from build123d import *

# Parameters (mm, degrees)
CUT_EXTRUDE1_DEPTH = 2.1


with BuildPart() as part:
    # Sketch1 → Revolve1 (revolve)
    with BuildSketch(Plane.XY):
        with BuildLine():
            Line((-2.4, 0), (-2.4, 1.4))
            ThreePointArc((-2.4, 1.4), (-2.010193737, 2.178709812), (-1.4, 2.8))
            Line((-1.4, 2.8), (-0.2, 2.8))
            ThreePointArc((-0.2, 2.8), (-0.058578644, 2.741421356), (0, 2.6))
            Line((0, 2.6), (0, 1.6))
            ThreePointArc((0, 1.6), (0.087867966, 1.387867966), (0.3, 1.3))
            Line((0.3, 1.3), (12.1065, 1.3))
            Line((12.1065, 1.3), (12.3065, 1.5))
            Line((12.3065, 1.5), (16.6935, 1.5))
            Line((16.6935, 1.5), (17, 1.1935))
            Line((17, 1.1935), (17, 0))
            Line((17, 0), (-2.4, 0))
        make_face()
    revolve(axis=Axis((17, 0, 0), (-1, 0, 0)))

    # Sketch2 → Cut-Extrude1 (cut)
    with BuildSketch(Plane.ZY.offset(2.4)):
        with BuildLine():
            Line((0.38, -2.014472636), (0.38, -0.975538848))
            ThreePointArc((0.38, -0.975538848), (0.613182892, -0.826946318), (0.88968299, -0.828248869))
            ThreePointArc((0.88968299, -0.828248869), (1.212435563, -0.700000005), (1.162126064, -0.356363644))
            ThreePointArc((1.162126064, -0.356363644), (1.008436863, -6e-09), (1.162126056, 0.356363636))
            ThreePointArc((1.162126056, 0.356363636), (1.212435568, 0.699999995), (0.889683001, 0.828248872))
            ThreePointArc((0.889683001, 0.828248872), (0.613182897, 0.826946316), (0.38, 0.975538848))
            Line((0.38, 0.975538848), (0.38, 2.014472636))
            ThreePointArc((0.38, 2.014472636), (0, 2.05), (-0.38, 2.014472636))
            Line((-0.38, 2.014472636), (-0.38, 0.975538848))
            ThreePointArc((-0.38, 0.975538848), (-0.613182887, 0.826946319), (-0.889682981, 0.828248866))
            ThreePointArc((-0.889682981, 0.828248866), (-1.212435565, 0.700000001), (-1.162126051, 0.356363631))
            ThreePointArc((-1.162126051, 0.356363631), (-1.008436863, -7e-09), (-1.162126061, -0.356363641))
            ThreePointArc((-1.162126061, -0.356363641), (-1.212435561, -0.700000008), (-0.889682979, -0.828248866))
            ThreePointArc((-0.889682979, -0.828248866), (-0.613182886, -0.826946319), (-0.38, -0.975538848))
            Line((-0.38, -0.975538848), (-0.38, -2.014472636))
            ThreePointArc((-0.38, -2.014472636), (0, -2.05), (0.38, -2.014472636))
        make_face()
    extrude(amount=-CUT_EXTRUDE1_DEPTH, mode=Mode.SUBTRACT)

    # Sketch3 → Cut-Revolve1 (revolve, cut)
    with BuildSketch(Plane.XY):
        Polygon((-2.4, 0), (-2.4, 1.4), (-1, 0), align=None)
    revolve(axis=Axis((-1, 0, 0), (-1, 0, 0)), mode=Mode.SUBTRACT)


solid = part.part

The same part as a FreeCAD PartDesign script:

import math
import FreeCAD as App
import Part
import Sketcher
from FreeCAD import Vector
Q = App.Units.Quantity

doc = App.newDocument("Part")
body = doc.addObject("PartDesign::Body", "Body")

# Sketch on XY plane
sketch1 = doc.addObject("Sketcher::SketchObject", "Sketch")
body.addObject(sketch1)
sketch1.AttachmentSupport = (doc.XY_Plane, [""])
sketch1.MapMode = "FlatFace"
sketch1.addGeometry(Part.LineSegment(Vector(-2.4, 1.4, 0), Vector(-2.4, 0, 0)), False)
sketch1.addGeometry(Part.LineSegment(Vector(-2.4, 0, 0), Vector(17, 0, 0)), False)
sketch1.addGeometry(Part.LineSegment(Vector(17, 0, 0), Vector(17, 1.19, 0)), False)
sketch1.addGeometry(Part.LineSegment(Vector(17, 1.19, 0), Vector(16.69, 1.5, 0)), False)
sketch1.addGeometry(Part.LineSegment(Vector(16.69, 1.5, 0), Vector(12.31, 1.5, 0)), False)
sketch1.addGeometry(Part.LineSegment(Vector(12.31, 1.5, 0), Vector(12.11, 1.3, 0)), False)
sketch1.addGeometry(Part.LineSegment(Vector(12.11, 1.3, 0), Vector(0.3, 1.3, 0)), False)
sketch1.addGeometry(Part.ArcOfCircle(Part.Circle(Vector(0.3, 1.6, 0), Vector(0, 0, 1), 0.3), math.radians(-180), math.radians(-90)), False)
sketch1.addGeometry(Part.LineSegment(Vector(0, 1.6, 0), Vector(0, 2.6, 0)), False)
sketch1.addGeometry(Part.ArcOfCircle(Part.Circle(Vector(-0.2, 2.6, 0), Vector(0, 0, 1), 0.2), math.radians(0), math.radians(90)), False)
sketch1.addGeometry(Part.LineSegment(Vector(-0.2, 2.8, 0), Vector(-1.4, 2.8, 0)), False)
sketch1.addGeometry(Part.ArcOfCircle(Part.Circle(Vector(0.27, 0.55, 0), Vector(0, 0, 1), 2.8), math.radians(127), math.radians(162)), False)
sketch1.addConstraint(Sketcher.Constraint("Coincident", 0, 2, 1, 1))
sketch1.addConstraint(Sketcher.Constraint("Coincident", 1, 2, 2, 1))
sketch1.addConstraint(Sketcher.Constraint("Coincident", 2, 2, 3, 1))
sketch1.addConstraint(Sketcher.Constraint("Coincident", 3, 2, 4, 1))
sketch1.addConstraint(Sketcher.Constraint("Coincident", 4, 2, 5, 1))
sketch1.addConstraint(Sketcher.Constraint("Coincident", 5, 2, 6, 1))
sketch1.addConstraint(Sketcher.Constraint("Tangent", 6, 2, 7, 2))
sketch1.addConstraint(Sketcher.Constraint("Tangent", 7, 1, 8, 1))
sketch1.addConstraint(Sketcher.Constraint("Tangent", 8, 2, 9, 1))
sketch1.addConstraint(Sketcher.Constraint("Tangent", 9, 2, 10, 1))
sketch1.addConstraint(Sketcher.Constraint("Coincident", 10, 2, 11, 1))
sketch1.addConstraint(Sketcher.Constraint("Coincident", 11, 2, 0, 1))
sketch1.addConstraint(Sketcher.Constraint("Vertical", 0))
sketch1.addConstraint(Sketcher.Constraint("Horizontal", 1))
sketch1.addConstraint(Sketcher.Constraint("Vertical", 2))
sketch1.addConstraint(Sketcher.Constraint("Horizontal", 4))
sketch1.addConstraint(Sketcher.Constraint("Horizontal", 6))
sketch1.addConstraint(Sketcher.Constraint("Vertical", 8))
sketch1.addConstraint(Sketcher.Constraint("Horizontal", 10))
sketch1.addConstraint(Sketcher.Constraint("PointOnObject", 0, 2, -1))
sketch1.addConstraint(Sketcher.Constraint("PointOnObject", 7, 1, -2))
sketch1.addConstraint(Sketcher.Constraint("Perpendicular", 3, 5))
sketch1.addConstraint(Sketcher.Constraint("Radius", 7, Q("0.3 mm")))
sketch1.addConstraint(Sketcher.Constraint("Radius", 9, Q("0.2 mm")))
sketch1.addConstraint(Sketcher.Constraint("Radius", 11, Q("2.8 mm")))
sketch1.addConstraint(Sketcher.Constraint("DistanceY", 8, 1, 8, 2, Q("1 mm")))
sketch1.addConstraint(Sketcher.Constraint("Angle", 3, Q("135 deg")))
sketch1.addConstraint(Sketcher.Constraint("DistanceX", 1, 1, 1, 2, Q("19.4 mm")))
sketch1.addConstraint(Sketcher.Constraint("DistanceX", 10, 2, 10, 1, Q("1.2 mm")))
sketch1.addConstraint(Sketcher.Constraint("DistanceY", 0, 2, 0, 1, Q("1.4 mm")))
sketch1.addConstraint(Sketcher.Constraint("DistanceX", -1, 1, 1, 2, Q("17 mm")))
sketch1.addConstraint(Sketcher.Constraint("DistanceY", -1, 1, 7, 3, Q("1.6 mm")))
sketch1.addConstraint(Sketcher.Constraint("DistanceY", -1, 1, 3, 2, Q("1.5 mm")))
sketch1.addConstraint(Sketcher.Constraint("DistanceX", 4, 2, 4, 1, Q("4.387 mm")))
sketch1.addConstraint(Sketcher.Constraint("DistanceX", 6, 2, 6, 1, Q("11.8065 mm")))
revolution = doc.addObject("PartDesign::Revolution", "Revolution")
body.addObject(revolution)
revolution.Profile = sketch1
revolution.ReferenceAxis = (sketch1, ["H_Axis"])
revolution.Angle = 360

# Sketch on YZ plane
sketch2 = doc.addObject("Sketcher::SketchObject", "Sketch001")
body.addObject(sketch2)
sketch2.AttachmentSupport = (doc.YZ_Plane, [""])
sketch2.MapMode = "FlatFace"
sketch2.AttachmentOffset = App.Placement(Vector(0, 0, -2.4), App.Rotation())
sketch2.addGeometry(Part.LineSegment(Vector(-2.01, 0.38, 0), Vector(-0.98, 0.38, 0)), False)
sketch2.addGeometry(Part.ArcOfCircle(Part.Circle(Vector(-1.3, 0.75, 0), Vector(0, 0, 1), 0.49), math.radians(-49), math.radians(17)), False)
sketch2.addGeometry(Part.ArcOfCircle(Part.Circle(Vector(-0.56, 0.97, 0), Vector(0, 0, 1), 0.28), math.radians(43), math.radians(197)), False)
sketch2.addGeometry(Part.ArcOfCircle(Part.Circle(Vector(0, 1.5, 0), Vector(0, 0, 1), 0.49), math.radians(-137), math.radians(-43)), False)
sketch2.addGeometry(Part.ArcOfCircle(Part.Circle(Vector(0.56, 0.97, 0), Vector(0, 0, 1), 0.28), math.radians(-17), math.radians(137)), False)
sketch2.addGeometry(Part.ArcOfCircle(Part.Circle(Vector(1.3, 0.75, 0), Vector(0, 0, 1), 0.49), math.radians(163), math.radians(229)), False)
sketch2.addGeometry(Part.LineSegment(Vector(0.98, 0.38, 0), Vector(2.01, 0.38, 0)), False)
sketch2.addGeometry(Part.ArcOfCircle(Part.Circle(Vector(0, 0, 0), Vector(0, 0, 1), 2.05), math.radians(-11), math.radians(11)), False)
sketch2.addGeometry(Part.LineSegment(Vector(2.01, -0.38, 0), Vector(0.98, -0.38, 0)), False)
sketch2.addGeometry(Part.ArcOfCircle(Part.Circle(Vector(1.3, -0.75, 0), Vector(0, 0, 1), 0.49), math.radians(131), math.radians(197)), False)
sketch2.addGeometry(Part.ArcOfCircle(Part.Circle(Vector(0.56, -0.97, 0), Vector(0, 0, 1), 0.28), math.radians(-137), math.radians(17)), False)
sketch2.addGeometry(Part.ArcOfCircle(Part.Circle(Vector(0, -1.5, 0), Vector(0, 0, 1), 0.49), math.radians(43), math.radians(137)), False)
sketch2.addGeometry(Part.ArcOfCircle(Part.Circle(Vector(-0.56, -0.97, 0), Vector(0, 0, 1), 0.28), math.radians(163), math.radians(317)), False)
sketch2.addGeometry(Part.ArcOfCircle(Part.Circle(Vector(-1.3, -0.75, 0), Vector(0, 0, 1), 0.49), math.radians(-17), math.radians(49)), False)
sketch2.addGeometry(Part.LineSegment(Vector(-0.98, -0.38, 0), Vector(-2.01, -0.38, 0)), False)
sketch2.addGeometry(Part.ArcOfCircle(Part.Circle(Vector(0, 0, 0), Vector(0, 0, 1), 2.05), math.radians(169), math.radians(191)), False)
sketch2.addConstraint(Sketcher.Constraint("Coincident", 0, 2, 1, 1))
sketch2.addConstraint(Sketcher.Constraint("Tangent", 1, 2, 2, 2))
sketch2.addConstraint(Sketcher.Constraint("Tangent", 2, 1, 3, 1))
sketch2.addConstraint(Sketcher.Constraint("Tangent", 3, 2, 4, 2))
sketch2.addConstraint(Sketcher.Constraint("Tangent", 4, 1, 5, 1))
sketch2.addConstraint(Sketcher.Constraint("Coincident", 5, 2, 6, 1))
sketch2.addConstraint(Sketcher.Constraint("Coincident", 6, 2, 7, 2))
sketch2.addConstraint(Sketcher.Constraint("Coincident", 7, 1, 8, 1))
sketch2.addConstraint(Sketcher.Constraint("Coincident", 8, 2, 9, 1))
sketch2.addConstraint(Sketcher.Constraint("Tangent", 9, 2, 10, 2))
sketch2.addConstraint(Sketcher.Constraint("Tangent", 10, 1, 11, 1))
sketch2.addConstraint(Sketcher.Constraint("Tangent", 11, 2, 12, 2))
sketch2.addConstraint(Sketcher.Constraint("Tangent", 12, 1, 13, 1))
sketch2.addConstraint(Sketcher.Constraint("Coincident", 13, 2, 14, 1))
sketch2.addConstraint(Sketcher.Constraint("Coincident", 14, 2, 15, 2))
sketch2.addConstraint(Sketcher.Constraint("Coincident", 15, 1, 0, 1))
sketch2.addConstraint(Sketcher.Constraint("Horizontal", 0))
sketch2.addConstraint(Sketcher.Constraint("Horizontal", 6))
sketch2.addConstraint(Sketcher.Constraint("Horizontal", 8))
sketch2.addConstraint(Sketcher.Constraint("Horizontal", 14))
sketch2.addConstraint(Sketcher.Constraint("Coincident", 7, 3, -1, 1))
sketch2.addConstraint(Sketcher.Constraint("Coincident", 15, 3, -1, 1))
sketch2.addConstraint(Sketcher.Constraint("Equal", 1, 3))
sketch2.addConstraint(Sketcher.Constraint("Equal", 2, 4))
sketch2.addConstraint(Sketcher.Constraint("Equal", 3, 5))
sketch2.addConstraint(Sketcher.Constraint("Equal", 5, 9))
sketch2.addConstraint(Sketcher.Constraint("Equal", 4, 10))
sketch2.addConstraint(Sketcher.Constraint("Equal", 9, 11))
sketch2.addConstraint(Sketcher.Constraint("Equal", 10, 12))
sketch2.addConstraint(Sketcher.Constraint("Equal", 11, 13))
sketch2.addConstraint(Sketcher.Constraint("Equal", 7, 15))
sketch2.addConstraint(Sketcher.Constraint("Symmetric", 1, 3, 9, 3, -1, 1))
sketch2.addConstraint(Sketcher.Constraint("Symmetric", 3, 3, 11, 3, -1, 1))
sketch2.addConstraint(Sketcher.Constraint("Symmetric", 5, 3, 13, 3, -1, 1))
sketch2.addConstraint(Sketcher.Constraint("Symmetric", 2, 3, 4, 3, -2))
sketch2.addConstraint(Sketcher.Constraint("Symmetric", 0, 2, 5, 2, -2))
sketch2.addConstraint(Sketcher.Constraint("Horizontal", 8, 2, 13, 2))
sketch2.addConstraint(Sketcher.Constraint("Vertical", 6, 2, 7, 1))
sketch2.addConstraint(Sketcher.Constraint("Radius", 1, Q("0.49 mm")))
sketch2.addConstraint(Sketcher.Constraint("Radius", 2, Q("0.28 mm")))
sketch2.addConstraint(Sketcher.Constraint("Radius", 7, Q("2.05 mm")))
sketch2.addConstraint(Sketcher.Constraint("DistanceX", 2, 3, -1, 1, Q("0.56 mm")))
sketch2.addConstraint(Sketcher.Constraint("DistanceY", -1, 1, 0, 2, Q("0.38 mm")))
sketch2.addConstraint(Sketcher.Constraint("DistanceX", 0, 1, 0, 2, Q("1.038934 mm")))
sketch2.addConstraint(Sketcher.Constraint("DistanceY", -1, 1, 1, 3, Q("0.749218 mm")))
pocket1 = doc.addObject("PartDesign::Pocket", "Pocket")
body.addObject(pocket1)
pocket1.Profile = sketch2
pocket1.Length = 2.1
pocket1.Reversed = True

# Sketch on XY plane
sketch3 = doc.addObject("Sketcher::SketchObject", "Sketch002")
body.addObject(sketch3)
sketch3.AttachmentSupport = (doc.XY_Plane, [""])
sketch3.MapMode = "FlatFace"
sketch3.addGeometry(Part.LineSegment(Vector(-2.4, 1.4, 0), Vector(-2.4, 0, 0)), False)
sketch3.addGeometry(Part.LineSegment(Vector(-2.4, 0, 0), Vector(-1, 0, 0)), False)
sketch3.addGeometry(Part.LineSegment(Vector(-1, 0, 0), Vector(-2.4, 1.4, 0)), False)
sketch3.addConstraint(Sketcher.Constraint("Coincident", 0, 2, 1, 1))
sketch3.addConstraint(Sketcher.Constraint("Coincident", 1, 2, 2, 1))
sketch3.addConstraint(Sketcher.Constraint("Coincident", 2, 2, 0, 1))
sketch3.addConstraint(Sketcher.Constraint("Vertical", 0))
sketch3.addConstraint(Sketcher.Constraint("Horizontal", 1))
sketch3.addConstraint(Sketcher.Constraint("PointOnObject", 0, 2, -1))
sketch3.addConstraint(Sketcher.Constraint("Equal", 1, 0))
sketch3.addConstraint(Sketcher.Constraint("DistanceX", 1, 1, 1, 2, Q("1.4 mm")))
sketch3.addConstraint(Sketcher.Constraint("DistanceX", 1, 2, -1, 1, Q("1 mm")))
groove = doc.addObject("PartDesign::Groove", "Groove")
body.addObject(groove)
groove.Profile = sketch3
groove.ReferenceAxis = (sketch3, ["H_Axis"])
groove.Angle = 360

doc.recompute()
